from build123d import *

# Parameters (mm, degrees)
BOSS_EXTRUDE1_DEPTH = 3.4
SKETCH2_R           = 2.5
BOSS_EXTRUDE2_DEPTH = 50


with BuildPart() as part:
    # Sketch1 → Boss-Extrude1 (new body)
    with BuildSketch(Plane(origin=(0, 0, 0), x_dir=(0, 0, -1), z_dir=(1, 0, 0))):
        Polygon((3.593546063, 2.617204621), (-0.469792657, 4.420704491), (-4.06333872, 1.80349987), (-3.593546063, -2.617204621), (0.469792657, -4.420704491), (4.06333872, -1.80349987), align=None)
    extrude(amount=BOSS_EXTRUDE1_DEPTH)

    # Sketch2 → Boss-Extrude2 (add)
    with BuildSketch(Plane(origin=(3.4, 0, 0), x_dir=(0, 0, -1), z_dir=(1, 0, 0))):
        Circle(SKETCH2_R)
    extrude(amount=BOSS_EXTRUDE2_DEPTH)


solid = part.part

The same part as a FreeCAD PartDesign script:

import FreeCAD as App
import Part
import Sketcher

V = App.Vector
Q = App.Units.Quantity


def add_polygon(sketch, points):
    """Adds a closed chain of lines whose ends are joined by coincident constraints."""
    first, n = sketch.GeometryCount, len(points)
    for a, b in zip(points, points[1:] + points[:1]):
        sketch.addGeometry(Part.LineSegment(App.Vector(*a, 0), App.Vector(*b, 0)), False)
    for i in range(n):
        sketch.addConstraint(Sketcher.Constraint("Coincident", first + i, 2, first + (i + 1) % n, 1))

doc = App.newDocument("Part")
body = doc.addObject("PartDesign::Body", "Body")

# Sketch on YZ plane
sketch1 = body.newObject("Sketcher::SketchObject", "Sketch")
sketch1.AttachmentSupport = (doc.getObject("YZ_Plane"), [""])
sketch1.MapMode = "FlatFace"
add_polygon(sketch1, [(2.6, -3.6), (4.4, 0.5), (1.8, 4.1), (-2.6, 3.6), (-4.4, -0.5), (-1.8, -4.1)])  # lines 0-5
sketch1.addConstraint(Sketcher.Constraint("Symmetric", 0, 2, 3, 2, -1, 1))
sketch1.addConstraint(Sketcher.Constraint("Symmetric", 1, 2, 4, 2, -1, 1))
sketch1.addConstraint(Sketcher.Constraint("Symmetric", 2, 2, 5, 2, -1, 1))
sketch1.addConstraint(Sketcher.Constraint("Equal", 0, 1))
sketch1.addConstraint(Sketcher.Constraint("Equal", 1, 2))
sketch1.addConstraint(Sketcher.Constraint("DistanceX", 4, 2, 1, 2, Q("3.607 mm")))
sketch1.addConstraint(Sketcher.Constraint("DistanceX", 3, 2, 2, 2, Q("1.8035 mm")))
sketch1.addConstraint(Sketcher.Constraint("DistanceY", -1, 1, 1, 2, Q("4.063339 mm")))
sketch1.addConstraint(Sketcher.Constraint("DistanceX", 2, 2, 0, 2, Q("7.037909 mm")))
pad1 = body.newObject("PartDesign::Pad", "Pad")
pad1.Profile = sketch1
pad1.Length = 3.4

# Sketch on YZ plane
sketch2 = body.newObject("Sketcher::SketchObject", "Sketch001")
sketch2.AttachmentSupport = (doc.getObject("YZ_Plane"), [""])
sketch2.MapMode = "FlatFace"
sketch2.AttachmentOffset = App.Placement(V(0, 0, 3.4), App.Rotation())
sketch2.addGeometry(Part.Circle(V(0, 0, 0), V(0, 0, 1), 2.5), False)
sketch2.addConstraint(Sketcher.Constraint("Coincident", 0, 3, -1, 1))
sketch2.addConstraint(Sketcher.Constraint("Diameter", 0, Q("5 mm")))
pad2 = body.newObject("PartDesign::Pad", "Pad001")
pad2.Profile = sketch2
pad2.Length = 50

doc.recompute()
